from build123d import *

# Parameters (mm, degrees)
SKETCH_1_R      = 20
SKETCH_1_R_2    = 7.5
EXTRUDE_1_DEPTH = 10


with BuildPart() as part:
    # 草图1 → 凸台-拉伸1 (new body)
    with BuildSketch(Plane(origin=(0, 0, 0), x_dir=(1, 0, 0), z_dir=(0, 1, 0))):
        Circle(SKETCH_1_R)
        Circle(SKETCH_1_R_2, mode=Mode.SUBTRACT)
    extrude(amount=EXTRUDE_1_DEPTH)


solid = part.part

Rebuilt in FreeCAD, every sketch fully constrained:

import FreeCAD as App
import Part
import Sketcher

V = App.Vector
Q = App.Units.Quantity

doc = App.newDocument("Part")
body = doc.addObject("PartDesign::Body", "Body")

# Sketch on XZ plane
sketch1 = body.newObject("Sketcher::SketchObject", "Sketch")
sketch1.AttachmentSupport = (doc.getObject("XZ_Plane"), [""])
sketch1.MapMode = "FlatFace"
sketch1.addGeometry(Part.Circle(V(0, 0, 0), V(0, 0, 1), 20), False)
sketch1.addGeometry(Part.Circle(V(0, 0, 0), V(0, 0, 1), 7.5), False)
sketch1.addConstraint(Sketcher.Constraint("Coincident", 0, 3, -1, 1))
sketch1.addConstraint(Sketcher.Constraint("Coincident", 1, 3, -1, 1))
sketch1.addConstraint(Sketcher.Constraint("Diameter", 0, Q("40 mm")))
sketch1.addConstraint(Sketcher.Constraint("Diameter", 1, Q("15 mm")))
pad1 = body.newObject("PartDesign::Pad", "Pad")
pad1.Profile = sketch1
pad1.Length = 10
pad1.Reversed = True

doc.recompute()
